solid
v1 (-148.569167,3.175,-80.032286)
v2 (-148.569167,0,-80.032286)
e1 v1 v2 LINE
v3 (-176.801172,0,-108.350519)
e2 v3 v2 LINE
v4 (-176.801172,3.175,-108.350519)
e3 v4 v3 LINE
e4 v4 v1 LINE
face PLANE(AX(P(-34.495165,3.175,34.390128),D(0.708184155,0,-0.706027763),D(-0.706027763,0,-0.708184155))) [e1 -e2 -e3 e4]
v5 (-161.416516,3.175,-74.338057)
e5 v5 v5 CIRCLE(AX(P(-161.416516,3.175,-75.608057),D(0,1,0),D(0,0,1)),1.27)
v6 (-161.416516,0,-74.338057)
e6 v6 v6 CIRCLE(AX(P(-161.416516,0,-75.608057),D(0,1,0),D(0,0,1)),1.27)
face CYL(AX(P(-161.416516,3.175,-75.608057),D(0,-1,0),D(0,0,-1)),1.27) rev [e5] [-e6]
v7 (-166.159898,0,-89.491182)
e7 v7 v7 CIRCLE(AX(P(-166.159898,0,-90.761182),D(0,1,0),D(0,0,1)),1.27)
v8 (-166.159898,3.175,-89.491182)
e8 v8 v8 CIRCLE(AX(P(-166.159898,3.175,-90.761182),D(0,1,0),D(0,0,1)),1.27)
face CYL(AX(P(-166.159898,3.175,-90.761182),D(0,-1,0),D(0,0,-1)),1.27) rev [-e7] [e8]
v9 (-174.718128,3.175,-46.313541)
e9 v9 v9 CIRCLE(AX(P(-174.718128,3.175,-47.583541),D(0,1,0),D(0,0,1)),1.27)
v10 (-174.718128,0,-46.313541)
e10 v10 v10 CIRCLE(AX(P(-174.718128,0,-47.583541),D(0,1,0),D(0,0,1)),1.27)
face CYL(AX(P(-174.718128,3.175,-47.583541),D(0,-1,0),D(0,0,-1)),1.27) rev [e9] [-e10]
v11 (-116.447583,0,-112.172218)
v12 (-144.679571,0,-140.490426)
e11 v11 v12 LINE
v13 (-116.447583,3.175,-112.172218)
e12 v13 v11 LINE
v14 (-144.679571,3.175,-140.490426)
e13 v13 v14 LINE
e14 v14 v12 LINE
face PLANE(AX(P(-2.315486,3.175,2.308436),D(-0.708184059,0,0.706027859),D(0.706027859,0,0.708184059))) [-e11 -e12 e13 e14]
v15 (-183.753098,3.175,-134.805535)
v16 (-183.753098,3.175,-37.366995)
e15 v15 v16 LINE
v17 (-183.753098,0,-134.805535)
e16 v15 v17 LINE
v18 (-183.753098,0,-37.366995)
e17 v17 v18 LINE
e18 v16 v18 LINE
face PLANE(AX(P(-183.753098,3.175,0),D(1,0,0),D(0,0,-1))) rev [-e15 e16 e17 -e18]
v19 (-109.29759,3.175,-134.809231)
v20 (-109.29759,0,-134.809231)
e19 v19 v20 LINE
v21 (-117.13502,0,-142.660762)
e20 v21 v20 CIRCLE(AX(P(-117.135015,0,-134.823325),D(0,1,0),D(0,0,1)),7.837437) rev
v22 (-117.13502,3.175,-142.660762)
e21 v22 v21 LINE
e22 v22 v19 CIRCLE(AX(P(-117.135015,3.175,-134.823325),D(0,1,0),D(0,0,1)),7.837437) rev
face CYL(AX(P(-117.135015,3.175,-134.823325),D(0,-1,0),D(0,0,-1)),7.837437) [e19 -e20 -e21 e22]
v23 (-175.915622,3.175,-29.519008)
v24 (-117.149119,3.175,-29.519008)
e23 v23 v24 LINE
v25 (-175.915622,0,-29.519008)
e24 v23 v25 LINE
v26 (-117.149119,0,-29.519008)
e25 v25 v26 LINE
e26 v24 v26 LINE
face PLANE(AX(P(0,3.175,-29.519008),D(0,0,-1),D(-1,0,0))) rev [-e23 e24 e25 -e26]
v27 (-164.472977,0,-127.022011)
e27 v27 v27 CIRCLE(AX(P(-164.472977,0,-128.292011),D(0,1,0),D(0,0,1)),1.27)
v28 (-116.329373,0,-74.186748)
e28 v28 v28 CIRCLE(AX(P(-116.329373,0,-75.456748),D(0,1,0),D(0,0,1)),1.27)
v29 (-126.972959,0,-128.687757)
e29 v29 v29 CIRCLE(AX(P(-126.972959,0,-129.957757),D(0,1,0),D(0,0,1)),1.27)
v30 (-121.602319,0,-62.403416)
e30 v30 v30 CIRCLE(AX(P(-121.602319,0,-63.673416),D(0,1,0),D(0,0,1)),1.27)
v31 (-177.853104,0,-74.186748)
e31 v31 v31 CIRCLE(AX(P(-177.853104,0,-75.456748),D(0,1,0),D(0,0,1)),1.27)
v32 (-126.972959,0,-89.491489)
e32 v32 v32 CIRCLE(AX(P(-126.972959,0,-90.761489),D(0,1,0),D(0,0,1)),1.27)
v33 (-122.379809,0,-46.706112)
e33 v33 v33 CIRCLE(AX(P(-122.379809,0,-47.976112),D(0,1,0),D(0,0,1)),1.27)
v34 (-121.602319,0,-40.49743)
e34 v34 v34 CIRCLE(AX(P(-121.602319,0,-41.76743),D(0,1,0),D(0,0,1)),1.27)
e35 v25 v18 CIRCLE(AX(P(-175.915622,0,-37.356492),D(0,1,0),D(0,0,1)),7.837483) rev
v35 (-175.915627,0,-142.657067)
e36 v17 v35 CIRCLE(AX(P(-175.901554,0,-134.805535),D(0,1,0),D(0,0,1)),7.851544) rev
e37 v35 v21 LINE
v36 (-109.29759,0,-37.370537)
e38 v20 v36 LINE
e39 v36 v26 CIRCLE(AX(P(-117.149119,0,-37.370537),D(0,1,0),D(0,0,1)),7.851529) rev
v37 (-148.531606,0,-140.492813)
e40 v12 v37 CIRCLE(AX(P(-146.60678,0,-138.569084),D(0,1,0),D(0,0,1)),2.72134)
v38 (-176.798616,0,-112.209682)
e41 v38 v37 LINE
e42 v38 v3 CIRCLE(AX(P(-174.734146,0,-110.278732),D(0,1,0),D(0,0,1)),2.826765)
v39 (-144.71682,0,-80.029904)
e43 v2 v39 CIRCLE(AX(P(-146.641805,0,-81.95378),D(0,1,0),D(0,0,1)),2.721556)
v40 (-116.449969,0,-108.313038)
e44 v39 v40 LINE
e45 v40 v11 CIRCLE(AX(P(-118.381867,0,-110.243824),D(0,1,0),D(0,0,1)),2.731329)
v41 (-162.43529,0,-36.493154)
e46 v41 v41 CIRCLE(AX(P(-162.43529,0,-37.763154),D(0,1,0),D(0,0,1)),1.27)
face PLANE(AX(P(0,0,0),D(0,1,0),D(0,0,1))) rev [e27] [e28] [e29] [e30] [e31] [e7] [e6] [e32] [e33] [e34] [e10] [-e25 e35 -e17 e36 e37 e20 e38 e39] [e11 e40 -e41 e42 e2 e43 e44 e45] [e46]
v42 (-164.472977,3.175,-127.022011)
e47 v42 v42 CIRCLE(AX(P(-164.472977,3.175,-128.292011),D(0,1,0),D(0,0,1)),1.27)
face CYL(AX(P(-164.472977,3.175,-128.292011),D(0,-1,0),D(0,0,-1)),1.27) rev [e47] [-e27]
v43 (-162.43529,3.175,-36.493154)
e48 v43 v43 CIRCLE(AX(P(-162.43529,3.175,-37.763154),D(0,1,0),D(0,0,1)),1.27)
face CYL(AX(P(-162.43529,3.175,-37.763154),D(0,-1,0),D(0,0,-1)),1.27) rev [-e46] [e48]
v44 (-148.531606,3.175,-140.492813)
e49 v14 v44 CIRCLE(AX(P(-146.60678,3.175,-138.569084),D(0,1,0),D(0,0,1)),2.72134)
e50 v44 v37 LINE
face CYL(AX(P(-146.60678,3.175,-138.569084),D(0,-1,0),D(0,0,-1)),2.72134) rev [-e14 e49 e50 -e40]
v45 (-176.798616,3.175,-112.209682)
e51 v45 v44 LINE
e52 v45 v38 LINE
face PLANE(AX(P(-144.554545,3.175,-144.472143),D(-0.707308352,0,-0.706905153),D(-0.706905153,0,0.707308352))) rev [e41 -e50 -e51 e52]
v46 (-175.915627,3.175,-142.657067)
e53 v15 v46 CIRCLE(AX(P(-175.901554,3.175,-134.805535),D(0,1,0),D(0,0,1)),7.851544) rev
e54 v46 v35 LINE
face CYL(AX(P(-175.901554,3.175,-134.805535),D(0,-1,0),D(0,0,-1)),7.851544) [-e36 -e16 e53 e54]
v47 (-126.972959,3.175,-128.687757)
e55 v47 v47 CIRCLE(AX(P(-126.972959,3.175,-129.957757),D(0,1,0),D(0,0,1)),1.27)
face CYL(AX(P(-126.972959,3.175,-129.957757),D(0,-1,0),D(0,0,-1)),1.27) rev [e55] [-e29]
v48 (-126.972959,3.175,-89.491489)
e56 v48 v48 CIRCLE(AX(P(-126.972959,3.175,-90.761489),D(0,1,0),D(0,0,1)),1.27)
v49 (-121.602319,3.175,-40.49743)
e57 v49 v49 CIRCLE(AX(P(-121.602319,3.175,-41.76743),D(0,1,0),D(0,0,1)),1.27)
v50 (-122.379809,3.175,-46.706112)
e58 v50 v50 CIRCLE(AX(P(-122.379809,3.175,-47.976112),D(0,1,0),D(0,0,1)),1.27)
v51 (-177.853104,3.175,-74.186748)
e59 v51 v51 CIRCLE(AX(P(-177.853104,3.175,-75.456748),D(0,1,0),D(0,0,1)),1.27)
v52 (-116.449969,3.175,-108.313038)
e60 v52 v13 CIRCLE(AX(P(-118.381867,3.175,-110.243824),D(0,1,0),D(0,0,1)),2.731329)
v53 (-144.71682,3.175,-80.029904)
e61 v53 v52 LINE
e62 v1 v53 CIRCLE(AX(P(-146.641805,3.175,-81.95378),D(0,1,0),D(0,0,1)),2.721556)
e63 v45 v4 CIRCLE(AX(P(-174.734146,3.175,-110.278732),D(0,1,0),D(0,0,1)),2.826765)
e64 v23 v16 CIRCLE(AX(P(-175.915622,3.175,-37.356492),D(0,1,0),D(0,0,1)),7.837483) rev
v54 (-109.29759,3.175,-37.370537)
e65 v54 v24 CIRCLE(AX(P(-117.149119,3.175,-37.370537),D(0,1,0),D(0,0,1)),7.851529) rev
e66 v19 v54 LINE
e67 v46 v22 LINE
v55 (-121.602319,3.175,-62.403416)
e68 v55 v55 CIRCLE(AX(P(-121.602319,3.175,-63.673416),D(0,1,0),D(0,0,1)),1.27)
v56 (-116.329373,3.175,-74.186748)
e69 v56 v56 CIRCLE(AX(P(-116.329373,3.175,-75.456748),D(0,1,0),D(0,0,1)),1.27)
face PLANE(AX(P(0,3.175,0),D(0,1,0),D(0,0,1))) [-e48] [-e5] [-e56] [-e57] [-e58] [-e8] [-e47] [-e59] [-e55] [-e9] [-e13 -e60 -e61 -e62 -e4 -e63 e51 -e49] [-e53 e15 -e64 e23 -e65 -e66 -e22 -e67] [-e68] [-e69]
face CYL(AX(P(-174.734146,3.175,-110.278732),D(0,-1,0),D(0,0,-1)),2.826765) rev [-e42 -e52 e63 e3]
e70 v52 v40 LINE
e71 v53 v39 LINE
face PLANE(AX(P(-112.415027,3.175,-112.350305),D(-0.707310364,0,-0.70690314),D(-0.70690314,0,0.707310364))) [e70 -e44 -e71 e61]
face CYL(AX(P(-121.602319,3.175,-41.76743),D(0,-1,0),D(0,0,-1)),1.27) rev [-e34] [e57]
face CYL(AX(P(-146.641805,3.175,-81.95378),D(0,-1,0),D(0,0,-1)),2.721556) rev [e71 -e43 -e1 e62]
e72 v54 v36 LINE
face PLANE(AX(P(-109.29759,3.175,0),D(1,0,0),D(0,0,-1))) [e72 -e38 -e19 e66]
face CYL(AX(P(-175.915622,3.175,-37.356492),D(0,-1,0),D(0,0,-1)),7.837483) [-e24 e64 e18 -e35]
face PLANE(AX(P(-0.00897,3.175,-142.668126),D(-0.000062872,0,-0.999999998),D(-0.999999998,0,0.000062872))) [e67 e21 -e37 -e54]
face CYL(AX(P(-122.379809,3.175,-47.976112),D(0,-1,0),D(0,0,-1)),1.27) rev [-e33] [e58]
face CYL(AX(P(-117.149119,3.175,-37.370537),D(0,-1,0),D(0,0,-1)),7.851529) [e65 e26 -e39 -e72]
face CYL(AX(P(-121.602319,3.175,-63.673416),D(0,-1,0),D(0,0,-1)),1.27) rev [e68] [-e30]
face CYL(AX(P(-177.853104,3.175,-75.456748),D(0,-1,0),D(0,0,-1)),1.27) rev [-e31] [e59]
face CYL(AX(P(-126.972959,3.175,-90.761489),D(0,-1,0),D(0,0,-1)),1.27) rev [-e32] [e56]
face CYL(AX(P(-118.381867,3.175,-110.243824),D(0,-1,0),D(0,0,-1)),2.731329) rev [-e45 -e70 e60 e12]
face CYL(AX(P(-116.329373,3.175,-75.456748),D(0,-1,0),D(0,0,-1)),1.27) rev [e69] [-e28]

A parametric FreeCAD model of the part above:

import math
import FreeCAD as App
import Part
import Sketcher

V = App.Vector
Q = App.Units.Quantity

doc = App.newDocument("Part")
body = doc.addObject("PartDesign::Body", "Body")

sketch1 = body.newObject("Sketcher::SketchObject", "Sketch")
sketch1.AttachmentSupport = (doc.getObject("XZ_Plane"), [""])
sketch1.MapMode = "FlatFace"
sketch1.addGeometry([
    Part.ArcOfCircle(Part.Circle(V(-175.915622, -37.356492, 0), V(0, 0, 1), 7.837483), math.radians(90), math.radians(180.076783)),
    Part.LineSegment(V(-175.915622, -29.519008, 0), V(-117.149119, -29.519008, 0)),
    Part.ArcOfCircle(Part.Circle(V(-117.149119, -37.370537, 0), V(0, 0, 1), 7.851529), math.radians(0), math.radians(90)),
    Part.LineSegment(V(-109.29759, -37.370537, 0), V(-109.29759, -134.809231, 0)),
    Part.ArcOfCircle(Part.Circle(V(-117.135015, -134.823325, 0), V(0, 0, 1), 7.837437), math.radians(-90.000043), math.radians(0.103036)),
    Part.LineSegment(V(-117.13502, -142.660762, 0), V(-175.915627, -142.657067, 0)),
    Part.ArcOfCircle(Part.Circle(V(-175.901554, -134.805535, 0), V(0, 0, 1), 7.851544), math.radians(-180), math.radians(-90.102701)),
    Part.LineSegment(V(-183.753098, -134.805535, 0), V(-183.753098, -37.366995, 0)),
    Part.Circle(V(-121.602319, -41.76743, 0), V(0, 0, 1), 1.27),
    Part.Circle(V(-122.379809, -47.976112, 0), V(0, 0, 1), 1.27),
    Part.Circle(V(-121.602319, -63.673416, 0), V(0, 0, 1), 1.27),
    Part.Circle(V(-116.329373, -75.456748, 0), V(0, 0, 1), 1.27),
    Part.Circle(V(-162.43529, -37.763154, 0), V(0, 0, 1), 1.27),
    Part.Circle(V(-174.718128, -47.583541, 0), V(0, 0, 1), 1.27),
    Part.Circle(V(-161.416516, -75.608057, 0), V(0, 0, 1), 1.27),
    Part.Circle(V(-177.853104, -75.456748, 0), V(0, 0, 1), 1.27),
    Part.Circle(V(-126.972959, -90.761489, 0), V(0, 0, 1), 1.27),
    Part.LineSegment(V(-144.679571, -140.490426, 0), V(-116.447583, -112.172218, 0)),
    Part.ArcOfCircle(Part.Circle(V(-118.381867, -110.243824, 0), V(0, 0, 1), 2.731329), math.radians(-44.912643), math.radians(44.983502)),
    Part.LineSegment(V(-116.449969, -108.313038, 0), V(-144.71682, -80.029904, 0)),
    Part.ArcOfCircle(Part.Circle(V(-146.641805, -81.95378, 0), V(0, 0, 1), 2.721556), math.radians(44.983502), math.radians(135.087365)),
    Part.LineSegment(V(-148.569167, -80.032286, 0), V(-176.801172, -108.350519, 0)),
    Part.ArcOfCircle(Part.Circle(V(-174.734146, -110.278732, 0), V(0, 0, 1), 2.826765), math.radians(136.989918), math.radians(223.085991)),
    Part.LineSegment(V(-176.798616, -112.209682, 0), V(-148.531606, -140.492813, 0)),
    Part.ArcOfCircle(Part.Circle(V(-146.60678, -138.569084, 0), V(0, 0, 1), 2.72134), math.radians(-135.016335), math.radians(-44.912643)),
    Part.Circle(V(-126.972959, -129.957757, 0), V(0, 0, 1), 1.27),
    Part.Circle(V(-166.159898, -90.761182, 0), V(0, 0, 1), 1.27),
    Part.Circle(V(-164.472977, -128.292011, 0), V(0, 0, 1), 1.27),
], False)
sketch1.addConstraint([
    Sketcher.Constraint("Coincident", 0, 1, 1, 1),
    Sketcher.Constraint("Coincident", 1, 2, 2, 2),
    Sketcher.Constraint("Coincident", 2, 1, 3, 1),
    Sketcher.Constraint("Coincident", 3, 2, 4, 2),
    Sketcher.Constraint("Coincident", 4, 1, 5, 1),
    Sketcher.Constraint("Coincident", 5, 2, 6, 2),
    Sketcher.Constraint("Coincident", 6, 1, 7, 1),
    Sketcher.Constraint("Coincident", 7, 2, 0, 2),
    Sketcher.Constraint("Coincident", 17, 2, 18, 1),
    Sketcher.Constraint("Coincident", 18, 2, 19, 1),
    Sketcher.Constraint("Coincident", 19, 2, 20, 1),
    Sketcher.Constraint("Coincident", 20, 2, 21, 1),
    Sketcher.Constraint("Coincident", 21, 2, 22, 1),
    Sketcher.Constraint("Coincident", 22, 2, 23, 1),
    Sketcher.Constraint("Coincident", 23, 2, 24, 1),
    Sketcher.Constraint("Coincident", 24, 2, 17, 1),
    Sketcher.Constraint("Horizontal", 1),
    Sketcher.Constraint("Vertical", 3),
    Sketcher.Constraint("Vertical", 7),
    Sketcher.Constraint("Diameter", 8, Q("0.1 in")),
    Sketcher.Constraint("Diameter", 9, Q("0.1 in")),
    Sketcher.Constraint("Diameter", 10, Q("0.1 in")),
    Sketcher.Constraint("Diameter", 11, Q("0.1 in")),
    Sketcher.Constraint("Diameter", 12, Q("0.1 in")),
    Sketcher.Constraint("Diameter", 13, Q("0.1 in")),
    Sketcher.Constraint("Diameter", 14, Q("0.1 in")),
    Sketcher.Constraint("Diameter", 15, Q("0.1 in")),
    Sketcher.Constraint("Diameter", 16, Q("0.1 in")),
    Sketcher.Constraint("Diameter", 25, Q("0.1 in")),
    Sketcher.Constraint("Diameter", 26, Q("0.1 in")),
    Sketcher.Constraint("Diameter", 27, Q("0.1 in")),
    Sketcher.Constraint("Radius", 2, 7.851529),
    Sketcher.Constraint("Radius", 18, 2.731329),
    Sketcher.Constraint("Radius", 24, 2.72134),
    Sketcher.Constraint("Radius", 0, 7.837483),
    Sketcher.Constraint("Radius", 4, 7.837437),
    Sketcher.Constraint("Radius", 6, 7.851544),
    Sketcher.Constraint("Radius", 20, 2.721556),
    Sketcher.Constraint("Radius", 22, 2.826765),
    Sketcher.Constraint("DistanceY", 7, 1, 7, 2, 97.43854),
    Sketcher.Constraint("DistanceY", 6, 3, 2, 3, 97.434998),
    Sketcher.Constraint("DistanceX", 8, 3, 2, 3, 4.4532),
    Sketcher.Constraint("DistanceX", 10, 3, 2, 3, 4.4532),
    Sketcher.Constraint("DistanceY", 4, 3, 18, 3, 24.579502),
    Sketcher.Constraint("DistanceX", 15, 3, 20, 3, 31.211299),
    Sketcher.Constraint("DistanceX", 8, 3, 1, 2, 4.4532),
    Sketcher.Constraint("DistanceX", 19, 2, 10, 3, 23.114502),
    Sketcher.Constraint("Distance", 19, 39.98688),
    Sketcher.Constraint("Distance", 23, 39.98699),
    Sketcher.Constraint("DistanceX", 1, 1, 1, 2, 58.766503),
    Sketcher.Constraint("DistanceY", 3, 2, 3, 1, 97.438694),
    Sketcher.Constraint("DistanceX", 0, 3, -1, 1, 175.915622),
    Sketcher.Constraint("DistanceY", 0, 3, -1, 1, 37.356492),
    Sketcher.Constraint("DistanceX", 2, 3, -1, 1, 117.149119),
    Sketcher.Constraint("DistanceY", 8, 3, -1, 1, 41.76743),
    Sketcher.Constraint("DistanceX", 9, 3, -1, 1, 122.379809),
    Sketcher.Constraint("DistanceY", 9, 3, -1, 1, 47.976112),
    Sketcher.Constraint("DistanceX", 12, 3, -1, 1, 162.43529),
    Sketcher.Constraint("DistanceY", 13, 3, -1, 1, 47.583541),
    Sketcher.Constraint("DistanceX", 16, 3, -1, 1, 126.972959),
    Sketcher.Constraint("DistanceY", 16, 3, -1, 1, 90.761489),
    Sketcher.Constraint("DistanceY", 20, 3, -1, 1, 81.95378),
    Sketcher.Constraint("DistanceY", 22, 3, -1, 1, 110.278732),
    Sketcher.Constraint("DistanceX", 24, 3, -1, 1, 146.60678),
    Sketcher.Constraint("DistanceX", 25, 3, -1, 1, 126.972959),
    Sketcher.Constraint("DistanceY", 27, 3, -1, 1, 128.292011),
    Sketcher.Constraint("DistanceY", 3, 2, -1, 1, 134.809231),
    Sketcher.Constraint("DistanceX", 4, 1, -1, 1, 117.13502),
    Sketcher.Constraint("DistanceY", 17, 2, -1, 1, 112.172218),
    Sketcher.Constraint("DistanceX", 18, 2, -1, 1, 116.449969),
    Sketcher.Constraint("DistanceY", 18, 2, -1, 1, 108.313038),
    Sketcher.Constraint("DistanceY", 21, 2, -1, 1, 108.350519),
    Sketcher.Constraint("DistanceY", 22, 2, -1, 1, 112.209682),
    Sketcher.Constraint("DistanceX", 24, 2, -1, 1, 144.679571),
    Sketcher.Constraint("DistanceY", 4, 3, 6, 3, 0.01779),
    Sketcher.Constraint("DistanceY", 10, 3, 2, 3, 26.302879),
    Sketcher.Constraint("DistanceY", 11, 3, 10, 3, 11.783332),
    Sketcher.Constraint("DistanceX", 4, 3, 11, 3, 0.805641),
    Sketcher.Constraint("DistanceY", 12, 3, 0, 3, 0.406662),
    Sketcher.Constraint("DistanceX", 13, 3, 9, 3, 52.338318),
    Sketcher.Constraint("DistanceX", 13, 3, 14, 3, 13.301612),
    Sketcher.Constraint("DistanceY", 14, 3, 10, 3, 11.934641),
    Sketcher.Constraint("DistanceY", 14, 3, 15, 3, 0.151309),
    Sketcher.Constraint("DistanceX", 22, 3, 14, 3, 13.31763),
    Sketcher.Constraint("DistanceY", 24, 3, 6, 3, 3.763549),
    Sketcher.Constraint("DistanceY", 25, 3, 16, 3, 39.196268),
    Sketcher.Constraint("DistanceX", 22, 3, 26, 3, 8.574248),
    Sketcher.Constraint("DistanceY", 22, 3, 26, 3, 19.517549),
    Sketcher.Constraint("DistanceX", 22, 3, 27, 3, 10.261169),
    Sketcher.Constraint("DistanceX", 5, 2, 27, 3, 11.44265),
    Sketcher.Constraint("DistanceY", 5, 2, 6, 1, 7.851531),
    Sketcher.Constraint("DistanceX", 14, 3, 20, 2, 12.847349),
])
pad1 = body.newObject("PartDesign::Pad", "Pad")
pad1.Profile = sketch1
pad1.Length = Q("0.125 in")
pad1.Reversed = True

doc.recompute()
